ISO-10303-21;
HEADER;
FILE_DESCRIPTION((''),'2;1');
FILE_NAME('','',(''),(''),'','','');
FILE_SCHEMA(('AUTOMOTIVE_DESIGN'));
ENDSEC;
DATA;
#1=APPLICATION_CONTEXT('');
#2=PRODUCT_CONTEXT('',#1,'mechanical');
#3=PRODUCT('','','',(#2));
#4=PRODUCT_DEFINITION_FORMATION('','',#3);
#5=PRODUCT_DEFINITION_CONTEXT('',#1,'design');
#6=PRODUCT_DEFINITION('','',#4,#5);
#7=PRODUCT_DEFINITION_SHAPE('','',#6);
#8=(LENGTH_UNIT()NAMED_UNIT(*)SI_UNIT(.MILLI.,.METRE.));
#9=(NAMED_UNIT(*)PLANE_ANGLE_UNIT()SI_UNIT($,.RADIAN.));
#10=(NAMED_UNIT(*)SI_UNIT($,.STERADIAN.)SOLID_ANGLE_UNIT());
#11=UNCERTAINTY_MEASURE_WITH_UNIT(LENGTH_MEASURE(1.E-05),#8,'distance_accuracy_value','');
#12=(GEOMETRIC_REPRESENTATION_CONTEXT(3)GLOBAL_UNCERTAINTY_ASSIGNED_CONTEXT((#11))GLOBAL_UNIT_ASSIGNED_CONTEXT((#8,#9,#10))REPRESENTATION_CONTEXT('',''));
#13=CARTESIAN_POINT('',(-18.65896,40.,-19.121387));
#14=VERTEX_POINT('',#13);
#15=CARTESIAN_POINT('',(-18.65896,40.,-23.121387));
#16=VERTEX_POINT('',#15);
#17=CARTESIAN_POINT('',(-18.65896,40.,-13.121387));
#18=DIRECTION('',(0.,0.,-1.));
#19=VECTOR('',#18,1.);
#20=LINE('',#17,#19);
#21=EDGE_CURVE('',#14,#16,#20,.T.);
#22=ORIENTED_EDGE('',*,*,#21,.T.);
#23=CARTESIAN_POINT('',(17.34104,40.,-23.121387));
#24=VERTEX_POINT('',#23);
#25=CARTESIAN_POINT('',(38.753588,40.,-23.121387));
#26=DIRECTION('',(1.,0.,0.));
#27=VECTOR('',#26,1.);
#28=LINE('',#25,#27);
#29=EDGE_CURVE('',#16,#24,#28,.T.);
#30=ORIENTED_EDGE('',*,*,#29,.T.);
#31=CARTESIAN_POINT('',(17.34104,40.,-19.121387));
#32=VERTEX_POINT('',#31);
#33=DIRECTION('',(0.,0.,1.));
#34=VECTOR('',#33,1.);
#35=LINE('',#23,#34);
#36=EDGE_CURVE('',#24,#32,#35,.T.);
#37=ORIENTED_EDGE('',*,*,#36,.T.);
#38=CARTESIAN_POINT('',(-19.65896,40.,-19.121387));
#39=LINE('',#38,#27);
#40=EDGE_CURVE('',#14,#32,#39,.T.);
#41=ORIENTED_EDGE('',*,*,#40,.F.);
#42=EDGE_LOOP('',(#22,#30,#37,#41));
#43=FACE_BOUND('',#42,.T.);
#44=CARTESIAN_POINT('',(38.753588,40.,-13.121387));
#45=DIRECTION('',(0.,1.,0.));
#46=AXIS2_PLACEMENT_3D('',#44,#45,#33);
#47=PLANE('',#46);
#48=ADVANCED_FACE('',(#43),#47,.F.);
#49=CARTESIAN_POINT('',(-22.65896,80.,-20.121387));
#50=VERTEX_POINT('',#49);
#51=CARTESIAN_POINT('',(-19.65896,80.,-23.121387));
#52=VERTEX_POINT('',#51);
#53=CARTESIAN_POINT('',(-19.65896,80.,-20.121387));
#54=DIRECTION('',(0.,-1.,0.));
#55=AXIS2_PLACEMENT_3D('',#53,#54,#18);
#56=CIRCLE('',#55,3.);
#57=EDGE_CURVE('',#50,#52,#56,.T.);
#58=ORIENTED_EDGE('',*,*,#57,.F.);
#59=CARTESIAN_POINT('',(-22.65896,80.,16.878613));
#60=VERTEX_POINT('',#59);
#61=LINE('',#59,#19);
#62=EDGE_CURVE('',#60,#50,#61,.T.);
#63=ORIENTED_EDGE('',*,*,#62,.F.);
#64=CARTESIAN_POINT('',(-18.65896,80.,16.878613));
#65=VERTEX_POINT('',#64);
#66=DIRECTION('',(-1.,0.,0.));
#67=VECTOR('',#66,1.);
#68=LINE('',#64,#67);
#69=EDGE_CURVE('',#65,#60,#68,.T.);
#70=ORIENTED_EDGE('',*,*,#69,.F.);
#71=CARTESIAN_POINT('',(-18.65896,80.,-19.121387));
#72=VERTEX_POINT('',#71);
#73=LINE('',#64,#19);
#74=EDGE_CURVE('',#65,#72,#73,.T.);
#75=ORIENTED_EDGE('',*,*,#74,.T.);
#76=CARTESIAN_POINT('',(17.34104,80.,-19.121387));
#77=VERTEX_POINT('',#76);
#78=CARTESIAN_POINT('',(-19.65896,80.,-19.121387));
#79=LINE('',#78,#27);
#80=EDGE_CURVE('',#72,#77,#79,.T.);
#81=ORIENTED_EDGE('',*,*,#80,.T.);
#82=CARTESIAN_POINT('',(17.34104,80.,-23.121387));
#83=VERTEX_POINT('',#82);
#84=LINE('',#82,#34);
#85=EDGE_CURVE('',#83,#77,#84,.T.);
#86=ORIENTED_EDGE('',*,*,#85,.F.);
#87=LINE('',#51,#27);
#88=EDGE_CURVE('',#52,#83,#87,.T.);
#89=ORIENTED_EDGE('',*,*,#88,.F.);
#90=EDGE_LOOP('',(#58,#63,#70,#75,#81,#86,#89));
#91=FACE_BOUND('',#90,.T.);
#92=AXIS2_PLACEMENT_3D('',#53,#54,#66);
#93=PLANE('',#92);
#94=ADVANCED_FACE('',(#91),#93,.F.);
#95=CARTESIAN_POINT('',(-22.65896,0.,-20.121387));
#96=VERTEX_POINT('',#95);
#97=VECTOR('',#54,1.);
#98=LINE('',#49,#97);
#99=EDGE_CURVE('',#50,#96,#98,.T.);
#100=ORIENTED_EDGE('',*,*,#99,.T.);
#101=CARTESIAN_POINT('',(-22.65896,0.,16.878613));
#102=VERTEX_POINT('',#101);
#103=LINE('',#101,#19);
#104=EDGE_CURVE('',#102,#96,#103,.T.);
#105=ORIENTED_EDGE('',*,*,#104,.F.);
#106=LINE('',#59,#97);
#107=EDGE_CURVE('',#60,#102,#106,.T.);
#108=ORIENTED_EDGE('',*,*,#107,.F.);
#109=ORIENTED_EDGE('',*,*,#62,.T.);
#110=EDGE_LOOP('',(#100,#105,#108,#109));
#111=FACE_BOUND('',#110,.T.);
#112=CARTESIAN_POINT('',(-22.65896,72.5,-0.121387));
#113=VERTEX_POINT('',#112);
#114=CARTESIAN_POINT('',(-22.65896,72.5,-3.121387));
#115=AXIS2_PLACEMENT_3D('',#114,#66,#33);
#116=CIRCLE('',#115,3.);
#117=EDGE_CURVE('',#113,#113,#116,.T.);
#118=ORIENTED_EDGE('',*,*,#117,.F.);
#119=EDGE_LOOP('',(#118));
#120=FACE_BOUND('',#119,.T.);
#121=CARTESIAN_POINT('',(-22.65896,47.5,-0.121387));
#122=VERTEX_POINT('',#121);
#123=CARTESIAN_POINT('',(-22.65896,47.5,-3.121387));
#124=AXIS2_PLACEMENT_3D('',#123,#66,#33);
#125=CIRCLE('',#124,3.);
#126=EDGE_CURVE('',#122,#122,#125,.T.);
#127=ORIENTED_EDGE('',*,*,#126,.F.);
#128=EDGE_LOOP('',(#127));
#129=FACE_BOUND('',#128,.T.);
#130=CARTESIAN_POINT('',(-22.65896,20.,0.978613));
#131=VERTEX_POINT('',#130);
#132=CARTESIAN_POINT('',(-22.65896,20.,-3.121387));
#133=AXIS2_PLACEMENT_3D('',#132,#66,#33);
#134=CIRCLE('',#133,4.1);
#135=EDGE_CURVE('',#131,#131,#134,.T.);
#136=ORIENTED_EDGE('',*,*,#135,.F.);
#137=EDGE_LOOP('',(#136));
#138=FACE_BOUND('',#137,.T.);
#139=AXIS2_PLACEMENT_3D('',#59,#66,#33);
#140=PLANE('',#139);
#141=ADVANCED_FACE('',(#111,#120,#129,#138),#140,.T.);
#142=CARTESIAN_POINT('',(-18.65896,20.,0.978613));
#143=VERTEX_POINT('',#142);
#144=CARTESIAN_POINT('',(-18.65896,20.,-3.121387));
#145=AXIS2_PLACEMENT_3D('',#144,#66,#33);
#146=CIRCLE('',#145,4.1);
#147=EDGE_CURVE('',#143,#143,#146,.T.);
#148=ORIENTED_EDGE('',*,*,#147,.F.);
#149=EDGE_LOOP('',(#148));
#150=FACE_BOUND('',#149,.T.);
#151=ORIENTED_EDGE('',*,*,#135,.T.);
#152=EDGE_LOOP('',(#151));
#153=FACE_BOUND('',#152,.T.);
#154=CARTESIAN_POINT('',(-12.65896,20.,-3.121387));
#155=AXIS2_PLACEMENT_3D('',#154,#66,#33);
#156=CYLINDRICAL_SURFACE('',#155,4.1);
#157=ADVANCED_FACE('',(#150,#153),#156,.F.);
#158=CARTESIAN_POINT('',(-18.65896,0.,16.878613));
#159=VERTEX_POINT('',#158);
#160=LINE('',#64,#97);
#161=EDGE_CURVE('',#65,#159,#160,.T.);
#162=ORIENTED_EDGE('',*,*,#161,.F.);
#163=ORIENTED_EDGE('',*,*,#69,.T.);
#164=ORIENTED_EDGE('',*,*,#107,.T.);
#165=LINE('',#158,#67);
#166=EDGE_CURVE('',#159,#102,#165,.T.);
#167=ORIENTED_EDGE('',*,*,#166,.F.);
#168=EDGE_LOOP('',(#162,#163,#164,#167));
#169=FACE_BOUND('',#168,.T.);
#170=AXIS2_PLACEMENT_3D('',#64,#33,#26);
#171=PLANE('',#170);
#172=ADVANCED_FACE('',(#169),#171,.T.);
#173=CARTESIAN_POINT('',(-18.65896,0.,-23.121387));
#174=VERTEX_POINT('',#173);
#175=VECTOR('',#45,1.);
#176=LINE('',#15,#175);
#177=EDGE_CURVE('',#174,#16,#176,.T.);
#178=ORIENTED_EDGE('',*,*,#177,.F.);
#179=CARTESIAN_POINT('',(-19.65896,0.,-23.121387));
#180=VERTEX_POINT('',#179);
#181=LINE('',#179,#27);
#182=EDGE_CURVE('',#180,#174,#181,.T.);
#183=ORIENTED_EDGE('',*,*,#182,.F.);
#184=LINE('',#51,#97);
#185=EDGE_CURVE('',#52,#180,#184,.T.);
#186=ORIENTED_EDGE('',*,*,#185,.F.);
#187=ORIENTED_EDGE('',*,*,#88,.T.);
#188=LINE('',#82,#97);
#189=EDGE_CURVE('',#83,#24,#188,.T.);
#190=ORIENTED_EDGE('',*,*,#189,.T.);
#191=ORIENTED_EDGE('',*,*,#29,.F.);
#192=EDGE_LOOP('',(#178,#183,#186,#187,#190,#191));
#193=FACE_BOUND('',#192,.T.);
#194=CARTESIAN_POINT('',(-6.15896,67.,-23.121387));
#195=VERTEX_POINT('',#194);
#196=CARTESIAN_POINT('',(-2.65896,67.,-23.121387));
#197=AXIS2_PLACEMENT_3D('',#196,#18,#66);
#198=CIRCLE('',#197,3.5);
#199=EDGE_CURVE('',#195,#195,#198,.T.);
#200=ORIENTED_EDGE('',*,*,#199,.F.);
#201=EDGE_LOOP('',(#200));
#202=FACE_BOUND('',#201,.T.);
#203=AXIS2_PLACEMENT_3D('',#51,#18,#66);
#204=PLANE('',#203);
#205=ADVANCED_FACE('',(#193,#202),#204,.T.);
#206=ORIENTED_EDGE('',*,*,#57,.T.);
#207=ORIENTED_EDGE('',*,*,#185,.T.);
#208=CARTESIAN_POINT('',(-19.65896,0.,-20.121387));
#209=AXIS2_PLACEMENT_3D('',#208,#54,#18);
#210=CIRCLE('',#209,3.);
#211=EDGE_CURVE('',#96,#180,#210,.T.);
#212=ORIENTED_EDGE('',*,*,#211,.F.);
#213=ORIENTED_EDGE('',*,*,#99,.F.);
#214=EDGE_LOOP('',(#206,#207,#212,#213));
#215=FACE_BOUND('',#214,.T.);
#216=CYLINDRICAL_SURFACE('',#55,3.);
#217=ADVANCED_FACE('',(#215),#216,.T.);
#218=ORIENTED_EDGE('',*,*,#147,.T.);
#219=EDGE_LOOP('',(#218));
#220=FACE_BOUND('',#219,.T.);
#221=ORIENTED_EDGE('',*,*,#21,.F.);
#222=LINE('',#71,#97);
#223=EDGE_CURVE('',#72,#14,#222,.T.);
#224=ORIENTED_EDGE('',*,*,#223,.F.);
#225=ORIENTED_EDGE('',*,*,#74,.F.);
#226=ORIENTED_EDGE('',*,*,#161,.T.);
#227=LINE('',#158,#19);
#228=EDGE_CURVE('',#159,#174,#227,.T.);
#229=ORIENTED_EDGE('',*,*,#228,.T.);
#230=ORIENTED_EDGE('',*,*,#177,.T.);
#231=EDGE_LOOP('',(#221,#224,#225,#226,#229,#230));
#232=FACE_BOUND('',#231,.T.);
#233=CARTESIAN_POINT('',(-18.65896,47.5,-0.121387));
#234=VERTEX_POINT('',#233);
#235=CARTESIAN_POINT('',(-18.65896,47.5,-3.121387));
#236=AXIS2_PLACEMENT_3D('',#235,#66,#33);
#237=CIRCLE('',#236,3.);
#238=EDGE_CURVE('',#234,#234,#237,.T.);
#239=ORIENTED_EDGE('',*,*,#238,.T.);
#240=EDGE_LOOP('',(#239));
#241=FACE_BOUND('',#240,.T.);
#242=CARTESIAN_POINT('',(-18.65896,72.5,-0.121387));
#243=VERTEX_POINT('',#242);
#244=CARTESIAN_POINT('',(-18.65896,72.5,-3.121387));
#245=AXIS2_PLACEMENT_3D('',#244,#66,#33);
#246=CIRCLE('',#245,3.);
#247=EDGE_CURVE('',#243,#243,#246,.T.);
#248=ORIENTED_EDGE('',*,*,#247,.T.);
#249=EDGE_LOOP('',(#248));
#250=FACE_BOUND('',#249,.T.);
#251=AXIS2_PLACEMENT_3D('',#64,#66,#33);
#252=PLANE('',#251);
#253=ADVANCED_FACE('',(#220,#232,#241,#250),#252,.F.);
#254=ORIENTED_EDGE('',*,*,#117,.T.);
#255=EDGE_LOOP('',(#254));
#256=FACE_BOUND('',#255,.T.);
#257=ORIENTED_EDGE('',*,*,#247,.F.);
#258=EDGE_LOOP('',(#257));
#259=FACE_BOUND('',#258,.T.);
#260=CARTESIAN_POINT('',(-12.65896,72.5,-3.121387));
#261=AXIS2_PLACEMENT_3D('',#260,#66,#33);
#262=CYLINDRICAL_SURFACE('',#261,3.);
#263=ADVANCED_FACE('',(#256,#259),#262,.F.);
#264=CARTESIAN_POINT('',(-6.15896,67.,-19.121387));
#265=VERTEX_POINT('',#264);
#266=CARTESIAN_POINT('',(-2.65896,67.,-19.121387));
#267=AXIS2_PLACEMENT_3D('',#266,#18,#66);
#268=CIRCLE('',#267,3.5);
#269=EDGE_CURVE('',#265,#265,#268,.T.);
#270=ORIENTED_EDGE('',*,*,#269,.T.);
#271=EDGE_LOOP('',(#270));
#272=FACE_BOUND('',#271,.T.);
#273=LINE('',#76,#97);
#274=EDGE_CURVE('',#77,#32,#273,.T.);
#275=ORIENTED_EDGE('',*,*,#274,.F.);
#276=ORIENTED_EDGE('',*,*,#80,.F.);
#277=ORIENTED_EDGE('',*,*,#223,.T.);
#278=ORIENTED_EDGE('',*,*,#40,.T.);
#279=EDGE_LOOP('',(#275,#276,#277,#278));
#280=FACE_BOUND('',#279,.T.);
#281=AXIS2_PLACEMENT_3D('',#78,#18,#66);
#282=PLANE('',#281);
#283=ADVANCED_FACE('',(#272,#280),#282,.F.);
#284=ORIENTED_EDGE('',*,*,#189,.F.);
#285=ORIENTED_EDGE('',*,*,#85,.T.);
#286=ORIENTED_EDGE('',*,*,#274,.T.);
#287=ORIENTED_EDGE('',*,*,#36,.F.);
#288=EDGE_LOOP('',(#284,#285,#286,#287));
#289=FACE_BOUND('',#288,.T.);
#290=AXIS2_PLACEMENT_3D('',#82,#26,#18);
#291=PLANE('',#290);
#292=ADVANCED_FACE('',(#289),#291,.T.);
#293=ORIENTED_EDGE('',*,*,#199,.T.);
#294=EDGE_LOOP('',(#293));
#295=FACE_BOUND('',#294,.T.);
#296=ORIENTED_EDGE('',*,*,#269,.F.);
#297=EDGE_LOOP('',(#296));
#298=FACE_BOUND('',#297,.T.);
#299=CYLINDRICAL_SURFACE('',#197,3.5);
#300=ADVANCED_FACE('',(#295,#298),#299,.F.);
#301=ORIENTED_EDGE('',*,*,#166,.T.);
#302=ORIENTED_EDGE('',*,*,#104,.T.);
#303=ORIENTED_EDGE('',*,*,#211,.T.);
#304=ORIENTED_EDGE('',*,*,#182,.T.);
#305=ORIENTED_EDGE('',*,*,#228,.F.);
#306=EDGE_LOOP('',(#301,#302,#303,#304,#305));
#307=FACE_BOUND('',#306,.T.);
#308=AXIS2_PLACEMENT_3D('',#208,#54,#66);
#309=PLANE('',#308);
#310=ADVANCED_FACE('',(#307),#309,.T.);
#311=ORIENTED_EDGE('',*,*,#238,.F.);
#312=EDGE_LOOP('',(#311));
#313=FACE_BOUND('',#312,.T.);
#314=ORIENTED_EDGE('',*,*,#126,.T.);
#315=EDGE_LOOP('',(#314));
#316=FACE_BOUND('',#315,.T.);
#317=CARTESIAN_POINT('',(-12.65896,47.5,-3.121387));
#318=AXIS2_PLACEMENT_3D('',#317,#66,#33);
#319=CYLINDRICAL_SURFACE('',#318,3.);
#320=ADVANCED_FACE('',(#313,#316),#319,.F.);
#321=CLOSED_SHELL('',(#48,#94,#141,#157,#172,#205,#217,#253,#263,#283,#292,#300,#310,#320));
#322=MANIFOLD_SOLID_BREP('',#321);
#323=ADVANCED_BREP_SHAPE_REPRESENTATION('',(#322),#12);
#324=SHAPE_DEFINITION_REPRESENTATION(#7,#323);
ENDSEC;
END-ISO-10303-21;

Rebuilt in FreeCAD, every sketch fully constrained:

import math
import FreeCAD as App
import Part
import Sketcher

doc = App.newDocument("Part")
body = doc.addObject("PartDesign::Body", "Body")

# Sketch on XZ plane
sketch1 = body.newObject("Sketcher::SketchObject", "Sketch")
sketch1.AttachmentSupport = (doc.getObject("XZ_Plane"), [""])
sketch1.MapMode = "FlatFace"
sketch1.addGeometry([
    Part.LineSegment(App.Vector(-22.7, -20.1, 0), App.Vector(-22.7, 16.9, 0)),  # 0
    Part.LineSegment(App.Vector(-22.7, 16.9, 0), App.Vector(-18.7, 16.9, 0)),  # 1
    Part.LineSegment(App.Vector(-18.7, 16.9, 0), App.Vector(-18.7, -19.1, 0)),  # 2
    Part.LineSegment(App.Vector(-18.7, -19.1, 0), App.Vector(17.3, -19.1, 0)),  # 3
    Part.LineSegment(App.Vector(17.3, -19.1, 0), App.Vector(17.3, -23.1, 0)),  # 4
    Part.LineSegment(App.Vector(17.3, -23.1, 0), App.Vector(-19.7, -23.1, 0)),  # 5
    Part.ArcOfCircle(Part.Circle(App.Vector(-19.7, -20.1, 0), App.Vector(0, 0, 1), 3), math.radians(180), math.radians(270)),  # 6
], False)
sketch1.addConstraint([
    Sketcher.Constraint("Coincident", 0, 2, 1, 1),
    Sketcher.Constraint("Coincident", 1, 2, 2, 1),
    Sketcher.Constraint("Coincident", 2, 2, 3, 1),
    Sketcher.Constraint("Coincident", 3, 2, 4, 1),
    Sketcher.Constraint("Coincident", 4, 2, 5, 1),
    Sketcher.Constraint("Tangent", 5, 2, 6, 2),
    Sketcher.Constraint("Tangent", 6, 1, 0, 1),
    Sketcher.Constraint("Vertical", 0),
    Sketcher.Constraint("Horizontal", 1),
    Sketcher.Constraint("Vertical", 2),
    Sketcher.Constraint("Horizontal", 3),
    Sketcher.Constraint("Vertical", 4),
    Sketcher.Constraint("Horizontal", 5),
    Sketcher.Constraint("Equal", 5, 0),
    Sketcher.Constraint("Equal", 3, 2),
    Sketcher.Constraint("Radius", 6, 3.0),
    Sketcher.Constraint("DistanceX", 1, 1, 1, 2, 4.0),
    Sketcher.Constraint("DistanceX", 3, 1, 3, 2, 36.0),
    Sketcher.Constraint("DistanceX", 6, 3, -1, 1, 19.65896),
    Sketcher.Constraint("DistanceY", 6, 3, -1, 1, 20.121387),
])
pad1 = body.newObject("PartDesign::Pad", "Pad")
pad1.Profile = sketch1
pad1.Length = 80
pad1.Reversed = True

# Sketch on YZ plane
sketch2 = body.newObject("Sketcher::SketchObject", "Sketch001")
sketch2.AttachmentSupport = (doc.getObject("YZ_Plane"), [""])
sketch2.MapMode = "FlatFace"
sketch2.AttachmentOffset = App.Placement(App.Vector(0, 0, -22.65896), App.Rotation())
sketch2.addGeometry([
    Part.Circle(App.Vector(20, -3.1, 0), App.Vector(0, 0, 1), 4.1),
    Part.Circle(App.Vector(47.5, -3.1, 0), App.Vector(0, 0, 1), 3),
    Part.Circle(App.Vector(72.5, -3.1, 0), App.Vector(0, 0, 1), 3),
], False)
sketch2.addConstraint([
    Sketcher.Constraint("Equal", 1, 2),
    Sketcher.Constraint("Horizontal", 0, 3, 1, 3),
    Sketcher.Constraint("Horizontal", 1, 3, 2, 3),
    Sketcher.Constraint("Diameter", 1, 6.0),
    Sketcher.Constraint("Diameter", 0, 8.2),
    Sketcher.Constraint("DistanceX", -1, 1, 0, 3, 20.0),
    Sketcher.Constraint("DistanceX", 1, 3, 2, 3, 25.0),
    Sketcher.Constraint("DistanceX", -1, 1, 1, 3, 47.5),
    Sketcher.Constraint("DistanceY", 0, 3, -1, 1, 3.121387),
])
pocket1 = body.newObject("PartDesign::Pocket", "Pocket")
pocket1.Profile = sketch2
pocket1.Length = 10
pocket1.Reversed = True

# Sketch on XY plane
sketch3 = body.newObject("Sketcher::SketchObject", "Sketch002")
sketch3.AttachmentSupport = (doc.getObject("XY_Plane"), [""])
sketch3.MapMode = "FlatFace"
sketch3.AttachmentOffset = App.Placement(App.Vector(0, 0, -23.121387), App.Rotation())
sketch3.addGeometry([
    Part.LineSegment(App.Vector(39, 40, 0), App.Vector(39, 0, 0)),
    Part.LineSegment(App.Vector(39, 0, 0), App.Vector(-19, 0, 0)),
    Part.LineSegment(App.Vector(-19, 0, 0), App.Vector(-19, 40, 0)),
    Part.LineSegment(App.Vector(-19, 40, 0), App.Vector(39, 40, 0)),
], False)
sketch3.addConstraint([
    Sketcher.Constraint("Coincident", 0, 2, 1, 1),
    Sketcher.Constraint("Coincident", 1, 2, 2, 1),
    Sketcher.Constraint("Coincident", 2, 2, 3, 1),
    Sketcher.Constraint("Coincident", 3, 2, 0, 1),
    Sketcher.Constraint("Vertical", 0),
    Sketcher.Constraint("Horizontal", 1),
    Sketcher.Constraint("Vertical", 2),
    Sketcher.Constraint("Horizontal", 3),
    Sketcher.Constraint("PointOnObject", 0, 2, -1),
    Sketcher.Constraint("DistanceY", 0, 2, 0, 1, 40.0),
    Sketcher.Constraint("DistanceX", 1, 2, 1, 1, 57.412548),
    Sketcher.Constraint("DistanceX", -1, 1, 0, 2, 38.753588),
])
pocket2 = body.newObject("PartDesign::Pocket", "Pocket001")
pocket2.Profile = sketch3
pocket2.Length = 10
pocket2.Reversed = True

# Sketch on XY plane
sketch4 = body.newObject("Sketcher::SketchObject", "Sketch003")
sketch4.AttachmentSupport = (doc.getObject("XY_Plane"), [""])
sketch4.MapMode = "FlatFace"
sketch4.AttachmentOffset = App.Placement(App.Vector(0, 0, -23.121387), App.Rotation())
sketch4.addGeometry(Part.Circle(App.Vector(-2.7, 67, 0), App.Vector(0, 0, 1), 3.5), False)
sketch4.addConstraint([
    Sketcher.Constraint("Diameter", 0, 7.0),
    Sketcher.Constraint("DistanceY", -1, 1, 0, 3, 67.0),
    Sketcher.Constraint("DistanceX", 0, 3, -1, 1, 2.65896),
])
doc.recompute()
hole = body.newObject("PartDesign::Hole", "Hole")
hole.Profile = sketch4
hole.ThreadType = "None"
hole.Diameter = 7
hole.DepthType = "ThroughAll"
hole.Reversed = True

doc.recompute()
